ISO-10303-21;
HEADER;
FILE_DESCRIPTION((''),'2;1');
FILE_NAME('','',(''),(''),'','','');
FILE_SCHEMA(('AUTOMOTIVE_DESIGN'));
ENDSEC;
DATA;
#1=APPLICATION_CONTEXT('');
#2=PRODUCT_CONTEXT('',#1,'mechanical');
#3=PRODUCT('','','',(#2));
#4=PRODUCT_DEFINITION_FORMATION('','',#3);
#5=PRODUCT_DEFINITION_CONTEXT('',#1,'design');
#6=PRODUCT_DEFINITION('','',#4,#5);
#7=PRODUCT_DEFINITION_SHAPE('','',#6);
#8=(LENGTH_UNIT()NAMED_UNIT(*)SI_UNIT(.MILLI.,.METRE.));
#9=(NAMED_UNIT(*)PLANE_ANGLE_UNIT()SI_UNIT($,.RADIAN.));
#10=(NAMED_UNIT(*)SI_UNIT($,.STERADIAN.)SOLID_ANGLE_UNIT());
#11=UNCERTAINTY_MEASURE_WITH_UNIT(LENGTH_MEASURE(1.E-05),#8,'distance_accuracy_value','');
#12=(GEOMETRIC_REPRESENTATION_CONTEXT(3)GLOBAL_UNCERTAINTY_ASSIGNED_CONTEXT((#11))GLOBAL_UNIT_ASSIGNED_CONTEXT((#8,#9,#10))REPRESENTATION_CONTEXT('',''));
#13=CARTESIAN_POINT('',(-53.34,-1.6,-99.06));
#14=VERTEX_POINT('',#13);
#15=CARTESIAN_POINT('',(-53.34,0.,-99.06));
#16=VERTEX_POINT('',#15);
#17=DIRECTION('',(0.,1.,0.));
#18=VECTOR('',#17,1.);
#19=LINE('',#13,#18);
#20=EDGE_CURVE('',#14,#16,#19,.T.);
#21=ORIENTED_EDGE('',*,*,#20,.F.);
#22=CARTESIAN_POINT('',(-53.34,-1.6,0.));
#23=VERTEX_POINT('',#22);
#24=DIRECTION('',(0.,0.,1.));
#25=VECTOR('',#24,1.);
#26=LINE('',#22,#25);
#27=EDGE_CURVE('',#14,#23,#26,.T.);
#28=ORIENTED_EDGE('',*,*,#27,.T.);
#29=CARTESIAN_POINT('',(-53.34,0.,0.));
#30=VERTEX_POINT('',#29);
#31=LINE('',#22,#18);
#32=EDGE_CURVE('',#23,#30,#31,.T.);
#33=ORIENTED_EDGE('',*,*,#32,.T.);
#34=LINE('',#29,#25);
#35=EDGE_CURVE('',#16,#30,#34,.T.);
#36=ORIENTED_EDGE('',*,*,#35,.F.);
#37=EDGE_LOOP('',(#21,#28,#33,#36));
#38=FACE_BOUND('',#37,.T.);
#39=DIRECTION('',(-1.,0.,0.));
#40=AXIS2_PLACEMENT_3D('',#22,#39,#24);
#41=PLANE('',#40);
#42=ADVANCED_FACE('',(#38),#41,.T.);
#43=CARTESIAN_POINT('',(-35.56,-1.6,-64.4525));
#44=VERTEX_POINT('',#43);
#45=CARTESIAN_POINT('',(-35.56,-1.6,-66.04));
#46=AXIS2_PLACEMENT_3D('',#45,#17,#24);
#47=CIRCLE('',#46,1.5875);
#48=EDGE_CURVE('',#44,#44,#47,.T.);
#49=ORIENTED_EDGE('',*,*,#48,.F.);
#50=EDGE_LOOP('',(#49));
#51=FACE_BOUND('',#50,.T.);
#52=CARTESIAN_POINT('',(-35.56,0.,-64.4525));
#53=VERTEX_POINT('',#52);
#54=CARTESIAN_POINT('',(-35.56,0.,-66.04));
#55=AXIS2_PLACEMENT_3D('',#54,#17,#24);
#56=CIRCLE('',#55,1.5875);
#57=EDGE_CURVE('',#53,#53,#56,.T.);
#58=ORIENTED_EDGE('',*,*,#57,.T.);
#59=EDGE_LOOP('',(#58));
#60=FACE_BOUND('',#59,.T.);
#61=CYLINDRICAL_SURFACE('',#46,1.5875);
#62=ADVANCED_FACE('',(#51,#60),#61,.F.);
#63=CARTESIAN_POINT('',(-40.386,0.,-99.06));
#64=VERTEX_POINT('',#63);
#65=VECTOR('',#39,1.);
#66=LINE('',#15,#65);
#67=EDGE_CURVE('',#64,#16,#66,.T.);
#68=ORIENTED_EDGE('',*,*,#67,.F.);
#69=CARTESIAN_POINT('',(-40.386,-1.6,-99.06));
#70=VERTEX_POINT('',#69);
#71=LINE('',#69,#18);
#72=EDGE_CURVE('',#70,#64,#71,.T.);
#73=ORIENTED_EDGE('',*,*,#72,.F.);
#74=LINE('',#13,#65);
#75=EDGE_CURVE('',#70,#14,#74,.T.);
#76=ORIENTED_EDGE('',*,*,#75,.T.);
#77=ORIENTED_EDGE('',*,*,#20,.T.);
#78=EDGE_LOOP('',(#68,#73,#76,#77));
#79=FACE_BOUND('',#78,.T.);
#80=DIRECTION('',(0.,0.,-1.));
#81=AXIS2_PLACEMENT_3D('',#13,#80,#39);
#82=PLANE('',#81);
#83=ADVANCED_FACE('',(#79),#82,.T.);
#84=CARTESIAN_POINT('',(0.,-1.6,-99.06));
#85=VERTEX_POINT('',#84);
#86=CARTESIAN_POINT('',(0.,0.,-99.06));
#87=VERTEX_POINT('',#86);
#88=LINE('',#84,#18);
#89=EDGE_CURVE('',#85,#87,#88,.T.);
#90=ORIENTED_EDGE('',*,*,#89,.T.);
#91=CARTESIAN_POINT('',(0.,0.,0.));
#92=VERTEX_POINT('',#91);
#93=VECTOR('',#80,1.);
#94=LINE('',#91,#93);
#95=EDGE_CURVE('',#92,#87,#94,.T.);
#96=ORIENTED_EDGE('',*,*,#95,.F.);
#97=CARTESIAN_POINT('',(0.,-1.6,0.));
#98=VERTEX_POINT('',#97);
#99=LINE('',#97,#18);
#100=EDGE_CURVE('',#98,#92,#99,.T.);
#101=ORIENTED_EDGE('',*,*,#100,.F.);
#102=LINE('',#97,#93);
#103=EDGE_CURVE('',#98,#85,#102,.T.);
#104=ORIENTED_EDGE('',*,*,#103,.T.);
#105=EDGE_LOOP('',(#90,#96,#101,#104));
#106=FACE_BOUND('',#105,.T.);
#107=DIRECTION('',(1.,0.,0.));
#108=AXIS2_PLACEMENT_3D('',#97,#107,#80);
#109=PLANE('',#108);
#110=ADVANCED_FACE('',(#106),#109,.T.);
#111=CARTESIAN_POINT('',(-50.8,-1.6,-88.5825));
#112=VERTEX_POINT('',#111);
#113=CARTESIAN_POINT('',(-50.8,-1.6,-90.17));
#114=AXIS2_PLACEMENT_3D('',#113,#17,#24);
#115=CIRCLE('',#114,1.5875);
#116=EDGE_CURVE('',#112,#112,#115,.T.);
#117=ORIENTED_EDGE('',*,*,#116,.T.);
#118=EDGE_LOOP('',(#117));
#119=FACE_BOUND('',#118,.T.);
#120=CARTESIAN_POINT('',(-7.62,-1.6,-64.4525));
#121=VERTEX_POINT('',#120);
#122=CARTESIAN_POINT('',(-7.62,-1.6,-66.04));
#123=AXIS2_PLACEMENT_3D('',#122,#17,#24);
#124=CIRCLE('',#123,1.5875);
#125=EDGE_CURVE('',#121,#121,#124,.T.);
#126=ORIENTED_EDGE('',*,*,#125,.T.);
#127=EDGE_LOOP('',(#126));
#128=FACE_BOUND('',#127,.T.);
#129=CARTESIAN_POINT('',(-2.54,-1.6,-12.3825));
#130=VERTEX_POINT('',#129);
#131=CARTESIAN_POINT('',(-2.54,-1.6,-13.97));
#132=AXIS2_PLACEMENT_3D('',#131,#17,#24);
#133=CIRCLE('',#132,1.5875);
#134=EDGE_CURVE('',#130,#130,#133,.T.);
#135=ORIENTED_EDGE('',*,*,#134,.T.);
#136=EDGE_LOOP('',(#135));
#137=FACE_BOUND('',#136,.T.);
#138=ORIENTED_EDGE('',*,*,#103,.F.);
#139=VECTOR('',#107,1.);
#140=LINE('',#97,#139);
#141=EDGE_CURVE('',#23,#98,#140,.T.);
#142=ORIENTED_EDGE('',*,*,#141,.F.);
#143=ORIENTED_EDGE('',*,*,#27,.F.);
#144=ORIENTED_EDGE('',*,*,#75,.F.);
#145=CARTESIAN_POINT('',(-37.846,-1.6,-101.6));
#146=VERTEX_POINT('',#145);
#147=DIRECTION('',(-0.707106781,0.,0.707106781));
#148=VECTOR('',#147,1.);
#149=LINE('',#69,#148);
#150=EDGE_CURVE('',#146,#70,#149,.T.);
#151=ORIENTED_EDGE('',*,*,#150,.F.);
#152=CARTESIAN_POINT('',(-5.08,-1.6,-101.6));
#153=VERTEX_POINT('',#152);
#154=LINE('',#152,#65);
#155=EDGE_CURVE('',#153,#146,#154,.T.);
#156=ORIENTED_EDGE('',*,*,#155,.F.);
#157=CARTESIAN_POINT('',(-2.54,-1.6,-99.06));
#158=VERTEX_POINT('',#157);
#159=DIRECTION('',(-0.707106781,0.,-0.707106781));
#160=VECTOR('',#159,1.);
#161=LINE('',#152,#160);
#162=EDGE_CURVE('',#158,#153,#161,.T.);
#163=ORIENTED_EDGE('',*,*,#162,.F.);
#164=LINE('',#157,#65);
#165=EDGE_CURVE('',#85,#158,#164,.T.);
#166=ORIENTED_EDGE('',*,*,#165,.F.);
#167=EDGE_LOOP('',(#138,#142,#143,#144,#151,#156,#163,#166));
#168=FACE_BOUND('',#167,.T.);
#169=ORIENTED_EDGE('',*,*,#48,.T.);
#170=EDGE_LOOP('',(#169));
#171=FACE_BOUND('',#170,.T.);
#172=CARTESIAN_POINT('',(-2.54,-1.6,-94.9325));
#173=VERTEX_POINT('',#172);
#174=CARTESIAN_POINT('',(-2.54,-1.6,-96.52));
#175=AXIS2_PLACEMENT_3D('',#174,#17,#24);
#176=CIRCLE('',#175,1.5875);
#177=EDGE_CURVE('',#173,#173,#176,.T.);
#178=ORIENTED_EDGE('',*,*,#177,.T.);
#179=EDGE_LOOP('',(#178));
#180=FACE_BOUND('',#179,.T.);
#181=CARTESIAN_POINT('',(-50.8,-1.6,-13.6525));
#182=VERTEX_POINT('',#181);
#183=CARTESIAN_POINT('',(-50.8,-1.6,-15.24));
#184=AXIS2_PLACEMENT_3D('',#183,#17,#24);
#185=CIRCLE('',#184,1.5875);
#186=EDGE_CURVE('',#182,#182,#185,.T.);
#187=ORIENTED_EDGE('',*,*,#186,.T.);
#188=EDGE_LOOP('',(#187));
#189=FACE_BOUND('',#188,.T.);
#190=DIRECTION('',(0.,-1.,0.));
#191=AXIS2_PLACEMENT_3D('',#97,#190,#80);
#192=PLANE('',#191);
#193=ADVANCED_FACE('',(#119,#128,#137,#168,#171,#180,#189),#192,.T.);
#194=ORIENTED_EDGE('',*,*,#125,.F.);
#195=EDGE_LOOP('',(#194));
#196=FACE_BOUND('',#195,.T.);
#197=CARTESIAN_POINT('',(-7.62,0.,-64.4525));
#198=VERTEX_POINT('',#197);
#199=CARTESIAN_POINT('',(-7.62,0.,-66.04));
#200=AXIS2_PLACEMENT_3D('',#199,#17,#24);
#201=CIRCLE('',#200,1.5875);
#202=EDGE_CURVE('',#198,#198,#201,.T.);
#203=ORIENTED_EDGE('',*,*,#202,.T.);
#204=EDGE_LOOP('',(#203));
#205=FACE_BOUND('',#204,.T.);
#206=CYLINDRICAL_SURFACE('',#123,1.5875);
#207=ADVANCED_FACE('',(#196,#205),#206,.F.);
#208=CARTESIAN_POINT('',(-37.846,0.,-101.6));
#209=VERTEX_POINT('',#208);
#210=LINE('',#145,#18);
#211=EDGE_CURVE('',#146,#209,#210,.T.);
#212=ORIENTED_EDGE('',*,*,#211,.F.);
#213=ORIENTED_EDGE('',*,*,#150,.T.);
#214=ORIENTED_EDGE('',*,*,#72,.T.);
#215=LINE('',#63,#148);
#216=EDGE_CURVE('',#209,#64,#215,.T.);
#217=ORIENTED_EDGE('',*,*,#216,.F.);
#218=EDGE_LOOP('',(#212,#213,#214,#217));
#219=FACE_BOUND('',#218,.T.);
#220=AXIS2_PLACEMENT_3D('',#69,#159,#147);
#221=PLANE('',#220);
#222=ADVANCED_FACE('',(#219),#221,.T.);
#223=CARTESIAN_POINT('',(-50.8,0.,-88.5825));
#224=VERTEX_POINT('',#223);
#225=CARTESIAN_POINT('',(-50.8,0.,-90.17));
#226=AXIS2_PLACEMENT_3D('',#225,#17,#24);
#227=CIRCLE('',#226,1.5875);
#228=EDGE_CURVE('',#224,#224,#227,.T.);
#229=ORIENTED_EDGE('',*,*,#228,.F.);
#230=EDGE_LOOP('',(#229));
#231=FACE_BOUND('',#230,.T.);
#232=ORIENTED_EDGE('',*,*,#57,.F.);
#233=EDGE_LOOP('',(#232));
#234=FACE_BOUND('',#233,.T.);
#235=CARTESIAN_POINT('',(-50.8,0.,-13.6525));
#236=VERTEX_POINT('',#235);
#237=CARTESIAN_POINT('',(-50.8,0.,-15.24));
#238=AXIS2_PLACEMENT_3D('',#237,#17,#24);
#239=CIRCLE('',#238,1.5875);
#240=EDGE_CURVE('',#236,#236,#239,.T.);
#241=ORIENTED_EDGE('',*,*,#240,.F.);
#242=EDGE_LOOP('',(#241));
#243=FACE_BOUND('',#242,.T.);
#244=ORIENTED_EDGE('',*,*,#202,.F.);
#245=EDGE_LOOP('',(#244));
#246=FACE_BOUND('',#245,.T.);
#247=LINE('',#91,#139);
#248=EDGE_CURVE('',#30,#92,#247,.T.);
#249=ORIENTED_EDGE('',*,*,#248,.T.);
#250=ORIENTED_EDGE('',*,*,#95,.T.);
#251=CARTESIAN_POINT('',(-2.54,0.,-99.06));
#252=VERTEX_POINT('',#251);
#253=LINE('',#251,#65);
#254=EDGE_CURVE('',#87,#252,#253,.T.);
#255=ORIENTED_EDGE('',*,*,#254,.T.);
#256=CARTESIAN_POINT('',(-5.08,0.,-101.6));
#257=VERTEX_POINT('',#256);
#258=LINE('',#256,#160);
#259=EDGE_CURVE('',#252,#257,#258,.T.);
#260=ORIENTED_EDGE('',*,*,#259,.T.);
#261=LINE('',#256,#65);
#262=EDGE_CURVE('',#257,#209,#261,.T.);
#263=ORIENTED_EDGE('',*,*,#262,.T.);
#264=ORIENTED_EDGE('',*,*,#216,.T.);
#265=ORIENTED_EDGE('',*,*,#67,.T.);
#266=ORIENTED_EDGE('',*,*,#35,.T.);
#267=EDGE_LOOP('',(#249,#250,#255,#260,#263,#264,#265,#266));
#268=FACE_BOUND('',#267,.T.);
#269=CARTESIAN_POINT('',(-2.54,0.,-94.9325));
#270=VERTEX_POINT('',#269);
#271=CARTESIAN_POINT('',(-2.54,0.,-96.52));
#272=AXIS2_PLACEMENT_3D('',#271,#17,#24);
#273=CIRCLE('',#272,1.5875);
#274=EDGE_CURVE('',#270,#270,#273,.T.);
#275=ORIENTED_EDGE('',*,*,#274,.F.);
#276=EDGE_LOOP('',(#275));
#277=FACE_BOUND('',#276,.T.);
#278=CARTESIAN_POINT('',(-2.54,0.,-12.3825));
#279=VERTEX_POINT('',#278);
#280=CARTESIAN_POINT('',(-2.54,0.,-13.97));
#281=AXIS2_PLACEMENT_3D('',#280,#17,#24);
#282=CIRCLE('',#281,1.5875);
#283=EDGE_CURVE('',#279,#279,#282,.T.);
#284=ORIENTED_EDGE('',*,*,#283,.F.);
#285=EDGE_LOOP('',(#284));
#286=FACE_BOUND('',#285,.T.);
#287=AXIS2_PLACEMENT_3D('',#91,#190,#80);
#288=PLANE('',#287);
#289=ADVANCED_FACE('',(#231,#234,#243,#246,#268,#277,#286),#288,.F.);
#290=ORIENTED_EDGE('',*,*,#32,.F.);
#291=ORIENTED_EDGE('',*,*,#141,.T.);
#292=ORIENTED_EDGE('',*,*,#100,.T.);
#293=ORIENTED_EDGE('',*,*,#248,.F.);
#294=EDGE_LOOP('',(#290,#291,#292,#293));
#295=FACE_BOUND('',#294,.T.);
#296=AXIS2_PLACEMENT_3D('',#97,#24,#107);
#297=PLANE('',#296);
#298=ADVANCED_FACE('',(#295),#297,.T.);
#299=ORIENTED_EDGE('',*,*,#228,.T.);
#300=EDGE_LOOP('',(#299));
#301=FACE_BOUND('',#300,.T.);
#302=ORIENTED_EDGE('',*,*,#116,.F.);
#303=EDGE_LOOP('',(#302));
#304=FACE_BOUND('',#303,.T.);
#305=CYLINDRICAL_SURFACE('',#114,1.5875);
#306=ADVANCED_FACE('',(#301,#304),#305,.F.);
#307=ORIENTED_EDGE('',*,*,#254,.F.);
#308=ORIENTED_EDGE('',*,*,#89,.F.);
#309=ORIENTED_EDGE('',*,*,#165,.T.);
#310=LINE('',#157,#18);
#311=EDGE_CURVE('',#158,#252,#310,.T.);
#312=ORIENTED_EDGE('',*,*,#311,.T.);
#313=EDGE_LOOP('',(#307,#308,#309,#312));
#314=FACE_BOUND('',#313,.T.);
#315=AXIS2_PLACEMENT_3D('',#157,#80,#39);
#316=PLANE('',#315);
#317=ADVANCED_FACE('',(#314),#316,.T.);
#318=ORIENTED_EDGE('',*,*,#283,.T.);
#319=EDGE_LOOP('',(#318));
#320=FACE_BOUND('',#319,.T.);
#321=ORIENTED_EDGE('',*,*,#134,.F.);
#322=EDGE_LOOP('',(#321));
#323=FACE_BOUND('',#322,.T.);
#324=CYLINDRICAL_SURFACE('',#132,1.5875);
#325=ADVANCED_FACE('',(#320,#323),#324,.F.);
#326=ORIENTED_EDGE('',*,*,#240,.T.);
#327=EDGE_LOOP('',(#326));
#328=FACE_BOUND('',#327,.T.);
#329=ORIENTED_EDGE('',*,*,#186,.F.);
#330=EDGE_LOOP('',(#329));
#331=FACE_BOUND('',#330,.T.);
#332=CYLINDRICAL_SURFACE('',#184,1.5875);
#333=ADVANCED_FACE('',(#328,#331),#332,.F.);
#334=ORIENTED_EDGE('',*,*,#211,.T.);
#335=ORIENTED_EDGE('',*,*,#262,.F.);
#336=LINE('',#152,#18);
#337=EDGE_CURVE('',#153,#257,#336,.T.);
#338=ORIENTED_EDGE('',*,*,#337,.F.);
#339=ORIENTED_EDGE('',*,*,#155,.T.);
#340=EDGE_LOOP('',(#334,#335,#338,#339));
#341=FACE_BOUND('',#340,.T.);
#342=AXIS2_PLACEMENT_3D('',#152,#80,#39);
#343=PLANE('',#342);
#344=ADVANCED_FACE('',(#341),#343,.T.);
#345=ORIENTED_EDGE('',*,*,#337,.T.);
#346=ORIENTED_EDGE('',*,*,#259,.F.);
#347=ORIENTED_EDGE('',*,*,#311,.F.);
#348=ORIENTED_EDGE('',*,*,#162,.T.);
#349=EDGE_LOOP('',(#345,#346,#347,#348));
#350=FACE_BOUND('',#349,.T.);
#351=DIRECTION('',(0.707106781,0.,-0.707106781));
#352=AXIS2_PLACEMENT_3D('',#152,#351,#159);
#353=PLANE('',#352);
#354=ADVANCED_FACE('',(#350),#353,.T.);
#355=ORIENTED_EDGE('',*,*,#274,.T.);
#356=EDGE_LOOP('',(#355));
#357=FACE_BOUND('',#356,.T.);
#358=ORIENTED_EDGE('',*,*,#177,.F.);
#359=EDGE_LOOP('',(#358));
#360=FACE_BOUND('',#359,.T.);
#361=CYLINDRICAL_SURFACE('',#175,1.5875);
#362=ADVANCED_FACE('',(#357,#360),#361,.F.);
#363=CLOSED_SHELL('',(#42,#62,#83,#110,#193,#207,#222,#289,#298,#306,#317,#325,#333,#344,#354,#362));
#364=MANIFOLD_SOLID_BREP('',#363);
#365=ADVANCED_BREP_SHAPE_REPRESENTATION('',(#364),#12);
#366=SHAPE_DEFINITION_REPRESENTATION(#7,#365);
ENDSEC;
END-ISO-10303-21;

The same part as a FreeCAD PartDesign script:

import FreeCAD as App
import Part
import Sketcher
from FreeCAD import Vector
Q = App.Units.Quantity

doc = App.newDocument("Part")
params = doc.addObject("Spreadsheet::Sheet", "Params")
for row, (alias, value) in enumerate([
    ("sketch1_diameter", "0.125 in"),
    ("sketch1_width", "2.1 in"),
    ("sketch1_width2", "0.1 in"),
    ("sketch1_height", "3.9 in"),
    ("sketch1_width3", "1.29 in"),
    ("pad1_length", "1.6 mm"),
], start=1):
    params.set(f"A{row}", alias)
    params.set(f"B{row}", "=" + value)
    params.setAlias(f"B{row}", alias)

body = doc.addObject("PartDesign::Body", "Body")

sketch1 = body.newObject("Sketcher::SketchObject", "Sketch")
sketch1.AttachmentSupport = (doc.getObject("XZ_Plane"), [""])
sketch1.MapMode = "FlatFace"
sketch1.addGeometry([
    Part.LineSegment(Vector(-53.3, 0, 0), Vector(0, 0, 0)),
    Part.LineSegment(Vector(0, 0, 0), Vector(0, -99.1, 0)),
    Part.LineSegment(Vector(0, -99.1, 0), Vector(-2.5, -99.1, 0)),
    Part.LineSegment(Vector(-2.5, -99.1, 0), Vector(-5.1, -101.6, 0)),
    Part.LineSegment(Vector(-5.1, -101.6, 0), Vector(-37.8, -101.6, 0)),
    Part.LineSegment(Vector(-37.8, -101.6, 0), Vector(-40.4, -99.1, 0)),
    Part.LineSegment(Vector(-40.4, -99.1, 0), Vector(-53.3, -99.1, 0)),
    Part.LineSegment(Vector(-53.3, -99.1, 0), Vector(-53.3, 0, 0)),
    Part.Circle(Vector(-2.5, -14, 0), Vector(0, 0, 1), 1.6),
    Part.Circle(Vector(-50.8, -15.2, 0), Vector(0, 0, 1), 1.6),
    Part.Circle(Vector(-7.6, -66, 0), Vector(0, 0, 1), 1.6),
    Part.Circle(Vector(-2.5, -96.5, 0), Vector(0, 0, 1), 1.6),
    Part.Circle(Vector(-35.6, -66, 0), Vector(0, 0, 1), 1.6),
    Part.Circle(Vector(-50.8, -90.2, 0), Vector(0, 0, 1), 1.6),
], False)
sketch1.addConstraint([
    Sketcher.Constraint("Coincident", 0, 2, 1, 1),
    Sketcher.Constraint("Coincident", 1, 2, 2, 1),
    Sketcher.Constraint("Coincident", 2, 2, 3, 1),
    Sketcher.Constraint("Coincident", 3, 2, 4, 1),
    Sketcher.Constraint("Coincident", 4, 2, 5, 1),
    Sketcher.Constraint("Coincident", 5, 2, 6, 1),
    Sketcher.Constraint("Coincident", 6, 2, 7, 1),
    Sketcher.Constraint("Coincident", 7, 2, 0, 1),
    Sketcher.Constraint("Horizontal", 0),
    Sketcher.Constraint("Vertical", 1),
    Sketcher.Constraint("Horizontal", 2),
    Sketcher.Constraint("Horizontal", 4),
    Sketcher.Constraint("Horizontal", 6),
    Sketcher.Constraint("Vertical", 7),
    Sketcher.Constraint("Coincident", 0, 2, -1, 1),
    Sketcher.Constraint("Equal", 8, 9),
    Sketcher.Constraint("Equal", 9, 10),
    Sketcher.Constraint("Equal", 10, 11),
    Sketcher.Constraint("Equal", 11, 12),
    Sketcher.Constraint("Equal", 12, 13),
    Sketcher.Constraint("Perpendicular", 3, 5),
    Sketcher.Constraint("Horizontal", 10, 3, 12, 3),
    Sketcher.Constraint("Horizontal", 2, 2, 5, 2),
    Sketcher.Constraint("Vertical", 8, 3, 11, 3),
    Sketcher.Constraint("Vertical", 9, 3, 13, 3),
    Sketcher.Constraint("Vertical", 11, 3, 2, 2),
    Sketcher.Constraint("Equal", 3, 5),
    Sketcher.Constraint("Diameter", 8, Q("0.125 in")),
    Sketcher.Constraint("DistanceX", 0, 1, 0, 2, Q("2.1 in")),
    Sketcher.Constraint("DistanceX", 2, 2, 2, 1, Q("0.1 in")),
    Sketcher.Constraint("DistanceY", 1, 2, 1, 1, Q("3.9 in")),
    Sketcher.Constraint("DistanceX", 9, 3, -1, 1, Q("2 in")),
    Sketcher.Constraint("DistanceY", 3, 2, -1, 1, Q("4 in")),
    Sketcher.Constraint("DistanceY", 10, 3, 9, 3, Q("2 in")),
    Sketcher.Constraint("DistanceY", 13, 3, 8, 3, Q("3 in")),
    Sketcher.Constraint("DistanceX", 4, 2, 4, 1, Q("1.29 in")),
    Sketcher.Constraint("DistanceY", 9, 3, -1, 1, Q("0.6 in")),
    Sketcher.Constraint("DistanceX", 10, 3, -1, 1, Q("0.3 in")),
    Sketcher.Constraint("DistanceY", 11, 3, -1, 1, Q("3.8 in")),
    Sketcher.Constraint("DistanceX", 12, 3, -1, 1, Q("1.4 in")),
    Sketcher.Constraint("DistanceY", 8, 3, -1, 1, Q("0.55 in")),
])
sketch1.setExpression("Constraints[27]", "Params.sketch1_diameter")
sketch1.setExpression("Constraints[28]", "Params.sketch1_width")
sketch1.setExpression("Constraints[29]", "Params.sketch1_width2")
sketch1.setExpression("Constraints[30]", "Params.sketch1_height")
sketch1.setExpression("Constraints[35]", "Params.sketch1_width3")
pad1 = body.newObject("PartDesign::Pad", "Pad")
pad1.Profile = sketch1
pad1.setExpression("Length", "Params.pad1_length")

doc.recompute()
